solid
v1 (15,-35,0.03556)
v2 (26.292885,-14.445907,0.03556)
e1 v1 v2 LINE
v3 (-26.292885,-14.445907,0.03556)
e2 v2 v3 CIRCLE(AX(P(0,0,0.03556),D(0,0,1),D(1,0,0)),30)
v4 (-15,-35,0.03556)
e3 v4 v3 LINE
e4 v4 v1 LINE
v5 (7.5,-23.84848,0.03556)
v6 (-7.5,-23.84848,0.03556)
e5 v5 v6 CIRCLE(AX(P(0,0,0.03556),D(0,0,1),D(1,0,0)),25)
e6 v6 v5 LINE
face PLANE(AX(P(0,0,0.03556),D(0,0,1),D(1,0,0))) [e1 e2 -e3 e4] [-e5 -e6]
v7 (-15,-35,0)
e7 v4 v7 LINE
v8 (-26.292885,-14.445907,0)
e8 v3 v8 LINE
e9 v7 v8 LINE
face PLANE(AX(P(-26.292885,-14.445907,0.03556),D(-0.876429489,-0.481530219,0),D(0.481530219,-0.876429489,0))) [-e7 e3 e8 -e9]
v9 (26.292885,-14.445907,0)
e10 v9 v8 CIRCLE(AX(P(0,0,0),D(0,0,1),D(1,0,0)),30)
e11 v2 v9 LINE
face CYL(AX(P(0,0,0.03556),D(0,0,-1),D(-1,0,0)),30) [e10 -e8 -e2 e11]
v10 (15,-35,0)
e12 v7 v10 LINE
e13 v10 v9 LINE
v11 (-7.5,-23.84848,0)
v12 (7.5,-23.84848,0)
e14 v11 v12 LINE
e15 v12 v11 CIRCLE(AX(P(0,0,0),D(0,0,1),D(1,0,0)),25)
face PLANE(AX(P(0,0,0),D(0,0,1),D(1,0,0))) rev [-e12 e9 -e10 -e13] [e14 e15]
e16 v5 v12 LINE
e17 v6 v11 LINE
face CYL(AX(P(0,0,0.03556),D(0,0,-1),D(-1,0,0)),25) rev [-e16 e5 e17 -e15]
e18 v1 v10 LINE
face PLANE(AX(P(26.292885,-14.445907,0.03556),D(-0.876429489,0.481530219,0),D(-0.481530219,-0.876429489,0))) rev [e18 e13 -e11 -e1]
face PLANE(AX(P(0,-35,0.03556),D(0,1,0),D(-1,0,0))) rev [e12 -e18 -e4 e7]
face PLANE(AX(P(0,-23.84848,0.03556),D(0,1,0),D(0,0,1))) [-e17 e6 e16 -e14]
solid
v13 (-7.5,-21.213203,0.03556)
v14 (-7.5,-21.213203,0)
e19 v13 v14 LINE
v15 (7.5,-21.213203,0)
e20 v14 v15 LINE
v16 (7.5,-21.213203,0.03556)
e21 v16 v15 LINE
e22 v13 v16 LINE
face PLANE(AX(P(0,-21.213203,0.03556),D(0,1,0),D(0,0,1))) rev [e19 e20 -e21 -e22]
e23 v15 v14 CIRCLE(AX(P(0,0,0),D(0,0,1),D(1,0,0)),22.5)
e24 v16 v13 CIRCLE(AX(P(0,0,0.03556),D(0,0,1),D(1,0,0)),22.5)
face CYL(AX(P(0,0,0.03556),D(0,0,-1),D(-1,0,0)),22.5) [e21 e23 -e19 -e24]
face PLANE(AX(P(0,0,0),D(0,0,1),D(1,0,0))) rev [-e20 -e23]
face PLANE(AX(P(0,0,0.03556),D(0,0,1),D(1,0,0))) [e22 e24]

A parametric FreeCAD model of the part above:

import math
import FreeCAD as App
import Part
import Sketcher

doc = App.newDocument("Part")
body = doc.addObject("PartDesign::Body", "Body")

# Sketch on XY plane
sketch1 = body.newObject("Sketcher::SketchObject", "Sketch")
sketch1.AttachmentSupport = (doc.getObject("XY_Plane"), [""])
sketch1.MapMode = "FlatFace"
sketch1.addGeometry([
    Part.LineSegment(App.Vector(-8, -21, 0), App.Vector(8, -21, 0)),
    Part.ArcOfCircle(Part.Circle(App.Vector(0, 0, 0), App.Vector(0, 0, 1), 22), math.radians(-71), math.radians(251)),
], False)
sketch1.addConstraint([
    Sketcher.Constraint("Coincident", 0, 1, 1, 2),
    Sketcher.Constraint("Coincident", 1, 1, 0, 2),
    Sketcher.Constraint("Horizontal", 0),
    Sketcher.Constraint("Coincident", 1, 3, -1, 1),
    Sketcher.Constraint("Radius", 1, 22.5),
    Sketcher.Constraint("DistanceX", 0, 1, 0, 2, 15.0),
])
pad1 = body.newObject("PartDesign::Pad", "Pad")
pad1.Profile = sketch1
pad1.Length = 0.03556
body2 = doc.addObject("PartDesign::Body", "Body001")

# Sketch on XY plane
sketch2 = body2.newObject("Sketcher::SketchObject", "Sketch001")
sketch2.AttachmentSupport = (doc.getObject("XY_Plane001"), [""])
sketch2.MapMode = "FlatFace"
sketch2.addGeometry([
    Part.LineSegment(App.Vector(-15, -35, 0), App.Vector(15, -35, 0)),  # 0
    Part.LineSegment(App.Vector(15, -35, 0), App.Vector(26, -14, 0)),  # 1
    Part.ArcOfCircle(Part.Circle(App.Vector(0, 0, 0), App.Vector(0, 0, 1), 30), math.radians(-29), math.radians(209)),  # 2
    Part.LineSegment(App.Vector(-26, -14, 0), App.Vector(-15, -35, 0)),  # 3
    Part.LineSegment(App.Vector(8, -24, 0), App.Vector(-8, -24, 0)),  # 4
    Part.ArcOfCircle(Part.Circle(App.Vector(0, 0, 0), App.Vector(0, 0, 1), 25), math.radians(-73), math.radians(253)),  # 5
], False)
sketch2.addConstraint([
    Sketcher.Constraint("Coincident", 0, 2, 1, 1),
    Sketcher.Constraint("Tangent", 1, 2, 2, 1),
    Sketcher.Constraint("Tangent", 2, 2, 3, 1),
    Sketcher.Constraint("Coincident", 3, 2, 0, 1),
    Sketcher.Constraint("Coincident", 4, 1, 5, 1),
    Sketcher.Constraint("Coincident", 5, 2, 4, 2),
    Sketcher.Constraint("Horizontal", 0),
    Sketcher.Constraint("Horizontal", 4),
    Sketcher.Constraint("Coincident", 2, 3, -1, 1),
    Sketcher.Constraint("Coincident", 5, 3, -1, 1),
    Sketcher.Constraint("Horizontal", 1, 2, 2, 2),
    Sketcher.Constraint("Radius", 2, 30.0),
    Sketcher.Constraint("Radius", 5, 25.0),
    Sketcher.Constraint("DistanceX", 0, 1, 0, 2, 30.0),
    Sketcher.Constraint("DistanceX", 4, 2, 4, 1, 15.0),
    Sketcher.Constraint("DistanceY", 0, 2, -1, 1, 35.0),
])
pad2 = body2.newObject("PartDesign::Pad", "Pad001")
pad2.Profile = sketch2
pad2.Length = 0.03556

doc.recompute()
